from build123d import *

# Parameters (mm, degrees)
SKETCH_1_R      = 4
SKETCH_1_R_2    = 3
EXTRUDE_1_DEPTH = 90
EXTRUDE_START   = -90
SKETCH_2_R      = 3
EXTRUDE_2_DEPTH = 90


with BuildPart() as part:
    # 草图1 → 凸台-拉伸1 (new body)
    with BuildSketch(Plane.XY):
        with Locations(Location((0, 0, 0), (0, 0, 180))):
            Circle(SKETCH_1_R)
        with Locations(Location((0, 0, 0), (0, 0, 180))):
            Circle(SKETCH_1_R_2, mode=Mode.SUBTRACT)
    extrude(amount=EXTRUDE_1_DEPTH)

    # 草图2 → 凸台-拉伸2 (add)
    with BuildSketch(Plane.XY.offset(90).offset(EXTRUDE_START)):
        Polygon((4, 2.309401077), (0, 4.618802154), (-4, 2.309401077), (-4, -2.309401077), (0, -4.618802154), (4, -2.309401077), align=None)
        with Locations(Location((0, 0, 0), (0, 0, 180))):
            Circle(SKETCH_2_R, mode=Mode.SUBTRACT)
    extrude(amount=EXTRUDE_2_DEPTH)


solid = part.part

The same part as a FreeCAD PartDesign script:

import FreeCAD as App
import Part
import Sketcher

V = App.Vector
Q = App.Units.Quantity


def add_polygon(sketch, points):
    """Adds a closed chain of lines whose ends are joined by coincident constraints."""
    first, n = sketch.GeometryCount, len(points)
    for a, b in zip(points, points[1:] + points[:1]):
        sketch.addGeometry(Part.LineSegment(App.Vector(*a, 0), App.Vector(*b, 0)), False)
    for i in range(n):
        sketch.addConstraint(Sketcher.Constraint("Coincident", first + i, 2, first + (i + 1) % n, 1))

doc = App.newDocument("Part")
params = doc.addObject("Spreadsheet::Sheet", "Params")
for row, (alias, value) in enumerate([
    ("sketch1_diameter", "8 mm"),
    ("sketch1_diameter2", "6 mm"),
    ("pad1_length", "90 mm"),
    ("sketch2_diameter", "6 mm"),
    ("pad2_length", "90 mm"),
], start=1):
    params.set(f"A{row}", alias)
    params.set(f"B{row}", "=" + value)
    params.setAlias(f"B{row}", alias)

body = doc.addObject("PartDesign::Body", "Body")

# Sketch on XY plane
sketch1 = body.newObject("Sketcher::SketchObject", "Sketch")
sketch1.AttachmentSupport = (doc.getObject("XY_Plane"), [""])
sketch1.MapMode = "FlatFace"
sketch1.addGeometry([
    Part.Circle(V(0, 0, 0), V(0, 0, 1), 4),
    Part.Circle(V(0, 0, 0), V(0, 0, 1), 3),
], False)
sketch1.addConstraint([
    Sketcher.Constraint("Coincident", 0, 3, -1, 1),
    Sketcher.Constraint("Coincident", 1, 3, -1, 1),
    Sketcher.Constraint("Diameter", 0, Q("8 mm")),
    Sketcher.Constraint("Diameter", 1, Q("6 mm")),
])
sketch1.setExpression("Constraints[2]", "Params.sketch1_diameter")
sketch1.setExpression("Constraints[3]", "Params.sketch1_diameter2")
pad1 = body.newObject("PartDesign::Pad", "Pad")
pad1.Profile = sketch1
pad1.setExpression("Length", "Params.pad1_length")

# Sketch on XY plane
sketch2 = body.newObject("Sketcher::SketchObject", "Sketch001")
sketch2.AttachmentSupport = (doc.getObject("XY_Plane"), [""])
sketch2.MapMode = "FlatFace"
add_polygon(sketch2, [(4, 2.3), (0, 4.6), (-4, 2.3), (-4, -2.3), (0, -4.6), (4, -2.3)])  # lines 0-5
sketch2.addGeometry(Part.Circle(V(0, 0, 0), V(0, 0, 1), 3), False)  # 6
sketch2.addConstraint([
    Sketcher.Constraint("Vertical", 2),
    Sketcher.Constraint("Vertical", 5),
    Sketcher.Constraint("Coincident", 6, 3, -1, 1),
    Sketcher.Constraint("Symmetric", 0, 2, 3, 2, -1, 1),
    Sketcher.Constraint("Symmetric", 1, 2, 4, 2, -1, 1),
    Sketcher.Constraint("PointOnObject", 0, 2, -2),
    Sketcher.Constraint("Parallel", 0, 3),
    Sketcher.Constraint("Horizontal", 2, 2, 4, 2),
    Sketcher.Constraint("Diameter", 6, Q("6 mm")),
    Sketcher.Constraint("Angle", 0, Q("150 deg")),
    Sketcher.Constraint("DistanceX", 1, 2, -1, 1, Q("4 mm")),
    Sketcher.Constraint("DistanceY", -1, 1, 1, 2, Q("2.309401 mm")),
])
sketch2.setExpression("Constraints[14]", "Params.sketch2_diameter")
pad2 = body.newObject("PartDesign::Pad", "Pad001")
pad2.Profile = sketch2
pad2.setExpression("Length", "Params.pad2_length")

doc.recompute()
